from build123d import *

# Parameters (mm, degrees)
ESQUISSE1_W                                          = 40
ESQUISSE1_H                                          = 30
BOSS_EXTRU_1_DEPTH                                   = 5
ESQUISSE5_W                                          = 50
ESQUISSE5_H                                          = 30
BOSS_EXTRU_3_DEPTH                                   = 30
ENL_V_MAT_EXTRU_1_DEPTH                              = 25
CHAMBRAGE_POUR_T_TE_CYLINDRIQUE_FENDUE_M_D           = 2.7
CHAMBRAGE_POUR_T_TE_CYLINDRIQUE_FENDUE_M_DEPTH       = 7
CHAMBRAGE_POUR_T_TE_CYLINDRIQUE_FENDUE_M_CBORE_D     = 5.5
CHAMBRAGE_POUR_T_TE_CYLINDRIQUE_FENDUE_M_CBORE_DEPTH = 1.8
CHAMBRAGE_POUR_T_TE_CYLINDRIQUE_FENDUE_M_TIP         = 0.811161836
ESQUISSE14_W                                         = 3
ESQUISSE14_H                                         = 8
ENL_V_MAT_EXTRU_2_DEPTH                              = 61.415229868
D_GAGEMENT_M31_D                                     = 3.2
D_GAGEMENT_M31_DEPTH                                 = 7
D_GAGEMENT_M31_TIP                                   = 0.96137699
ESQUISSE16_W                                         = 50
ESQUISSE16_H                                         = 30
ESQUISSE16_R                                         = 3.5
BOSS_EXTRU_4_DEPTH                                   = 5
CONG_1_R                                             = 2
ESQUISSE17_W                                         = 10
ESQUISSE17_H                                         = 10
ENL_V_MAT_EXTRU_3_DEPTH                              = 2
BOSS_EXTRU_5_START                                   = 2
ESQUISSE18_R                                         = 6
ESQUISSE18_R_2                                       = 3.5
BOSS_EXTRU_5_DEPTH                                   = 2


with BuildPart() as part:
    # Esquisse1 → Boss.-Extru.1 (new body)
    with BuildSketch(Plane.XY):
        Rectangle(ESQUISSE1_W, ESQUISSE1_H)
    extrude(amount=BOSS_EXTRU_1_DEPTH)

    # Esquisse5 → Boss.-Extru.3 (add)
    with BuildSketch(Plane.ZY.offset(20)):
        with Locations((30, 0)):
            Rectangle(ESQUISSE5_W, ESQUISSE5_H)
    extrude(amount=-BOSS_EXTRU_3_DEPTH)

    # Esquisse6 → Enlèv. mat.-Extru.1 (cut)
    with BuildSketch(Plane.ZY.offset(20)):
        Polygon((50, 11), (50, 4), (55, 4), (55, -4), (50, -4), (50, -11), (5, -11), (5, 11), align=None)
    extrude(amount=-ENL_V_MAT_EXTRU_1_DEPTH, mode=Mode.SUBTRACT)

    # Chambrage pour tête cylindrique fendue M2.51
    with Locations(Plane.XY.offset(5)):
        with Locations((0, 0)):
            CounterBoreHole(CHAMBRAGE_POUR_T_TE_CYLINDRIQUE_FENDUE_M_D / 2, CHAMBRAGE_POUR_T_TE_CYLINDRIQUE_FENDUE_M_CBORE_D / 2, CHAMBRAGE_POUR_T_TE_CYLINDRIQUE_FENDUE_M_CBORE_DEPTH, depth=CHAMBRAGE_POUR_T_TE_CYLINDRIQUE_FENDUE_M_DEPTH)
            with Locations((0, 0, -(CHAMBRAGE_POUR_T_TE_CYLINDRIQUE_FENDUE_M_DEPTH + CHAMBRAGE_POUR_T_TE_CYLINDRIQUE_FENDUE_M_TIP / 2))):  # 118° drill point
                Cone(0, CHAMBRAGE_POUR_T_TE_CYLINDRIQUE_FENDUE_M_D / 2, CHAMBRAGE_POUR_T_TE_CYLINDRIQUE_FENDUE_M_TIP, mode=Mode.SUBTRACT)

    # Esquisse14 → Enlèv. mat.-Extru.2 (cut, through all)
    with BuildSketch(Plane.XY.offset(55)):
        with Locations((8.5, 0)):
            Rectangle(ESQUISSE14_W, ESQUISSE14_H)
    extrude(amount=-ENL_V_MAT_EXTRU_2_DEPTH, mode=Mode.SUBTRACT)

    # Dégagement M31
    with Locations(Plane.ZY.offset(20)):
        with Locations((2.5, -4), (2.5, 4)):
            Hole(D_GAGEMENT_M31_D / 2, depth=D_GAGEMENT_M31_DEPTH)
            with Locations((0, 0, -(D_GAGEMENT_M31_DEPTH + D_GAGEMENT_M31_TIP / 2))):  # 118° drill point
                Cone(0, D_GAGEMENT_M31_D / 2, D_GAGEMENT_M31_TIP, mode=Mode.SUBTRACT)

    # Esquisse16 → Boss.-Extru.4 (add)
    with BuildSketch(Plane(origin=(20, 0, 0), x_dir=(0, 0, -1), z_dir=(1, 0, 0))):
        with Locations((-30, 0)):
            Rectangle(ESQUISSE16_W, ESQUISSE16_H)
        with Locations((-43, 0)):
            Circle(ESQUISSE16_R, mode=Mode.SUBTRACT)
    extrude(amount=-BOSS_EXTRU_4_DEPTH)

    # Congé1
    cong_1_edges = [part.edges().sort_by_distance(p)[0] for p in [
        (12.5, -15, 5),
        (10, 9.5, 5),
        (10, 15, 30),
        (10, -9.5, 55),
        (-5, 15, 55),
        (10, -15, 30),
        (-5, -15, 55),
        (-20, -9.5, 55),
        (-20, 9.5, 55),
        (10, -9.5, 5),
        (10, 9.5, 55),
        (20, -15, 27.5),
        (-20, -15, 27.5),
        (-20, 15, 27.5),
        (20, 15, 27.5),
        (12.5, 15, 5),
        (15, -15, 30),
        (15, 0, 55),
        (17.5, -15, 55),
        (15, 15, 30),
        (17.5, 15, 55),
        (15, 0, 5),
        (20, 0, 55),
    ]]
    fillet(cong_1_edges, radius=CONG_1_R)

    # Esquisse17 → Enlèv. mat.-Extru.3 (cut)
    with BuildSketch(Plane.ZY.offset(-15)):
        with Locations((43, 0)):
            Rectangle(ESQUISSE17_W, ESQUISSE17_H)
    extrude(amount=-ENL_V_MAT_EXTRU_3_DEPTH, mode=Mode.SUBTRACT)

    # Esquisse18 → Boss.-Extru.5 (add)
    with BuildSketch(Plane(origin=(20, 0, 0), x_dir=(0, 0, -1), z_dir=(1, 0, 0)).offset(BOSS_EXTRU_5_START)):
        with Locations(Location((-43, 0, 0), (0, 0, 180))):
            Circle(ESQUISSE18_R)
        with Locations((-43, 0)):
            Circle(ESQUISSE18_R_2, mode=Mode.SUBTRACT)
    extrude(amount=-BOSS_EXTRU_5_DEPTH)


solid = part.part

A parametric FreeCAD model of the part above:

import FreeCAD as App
import Part
import Sketcher
from FreeCAD import Vector


def edges_at(feature, points):
    """Names of the edges that pass closest to the given points."""
    edges = feature.Shape.Edges
    near = lambda p: min(range(len(edges)), key=lambda i: edges[i].distToShape(Part.Vertex(*p))[0])
    return sorted({f"Edge{near(p) + 1}" for p in points})


def add_polygon(sketch, points):
    """Adds a closed chain of lines whose ends are joined by coincident constraints."""
    first, n = sketch.GeometryCount, len(points)
    for a, b in zip(points, points[1:] + points[:1]):
        sketch.addGeometry(Part.LineSegment(App.Vector(*a, 0), App.Vector(*b, 0)), False)
    for i in range(n):
        sketch.addConstraint(Sketcher.Constraint("Coincident", first + i, 2, first + (i + 1) % n, 1))

doc = App.newDocument("Part")
body = doc.addObject("PartDesign::Body", "Body")

sketch1 = body.newObject("Sketcher::SketchObject", "Sketch")
sketch1.AttachmentSupport = (doc.getObject("XY_Plane"), [""])
sketch1.MapMode = "FlatFace"
add_polygon(sketch1, [(-20, 15), (-20, -15), (20, -15), (20, 15)])
sketch1.addConstraint([
    Sketcher.Constraint("Vertical", 0),
    Sketcher.Constraint("Horizontal", 1),
    Sketcher.Constraint("Vertical", 2),
    Sketcher.Constraint("Horizontal", 3),
    Sketcher.Constraint("Symmetric", 0, 2, 2, 2, -1, 1),
    Sketcher.Constraint("DistanceX", 1, 1, 1, 2, 40.0),
    Sketcher.Constraint("DistanceY", 0, 2, 0, 1, 30.0),
])
pad1 = body.newObject("PartDesign::Pad", "Pad")
pad1.Profile = sketch1
pad1.Length = 5

sketch2 = body.newObject("Sketcher::SketchObject", "Sketch001")
sketch2.AttachmentSupport = (doc.getObject("YZ_Plane"), [""])
sketch2.MapMode = "FlatFace"
sketch2.AttachmentOffset = App.Placement(Vector(0, 0, -20), App.Rotation())
add_polygon(sketch2, [(15, 5), (-15, 5), (-15, 55), (15, 55)])
sketch2.addConstraint([
    Sketcher.Constraint("Horizontal", 0),
    Sketcher.Constraint("Vertical", 1),
    Sketcher.Constraint("Horizontal", 2),
    Sketcher.Constraint("Vertical", 3),
    Sketcher.Constraint("DistanceX", 0, 2, 0, 1, 30.0),
    Sketcher.Constraint("DistanceY", 1, 1, 1, 2, 50.0),
    Sketcher.Constraint("DistanceX", 0, 2, -1, 1, 15.0),
    Sketcher.Constraint("DistanceY", -1, 1, 0, 2, 5.0),
])
pad2 = body.newObject("PartDesign::Pad", "Pad001")
pad2.Profile = sketch2
pad2.Length = 30

sketch3 = body.newObject("Sketcher::SketchObject", "Sketch002")
sketch3.AttachmentSupport = (doc.getObject("YZ_Plane"), [""])
sketch3.MapMode = "FlatFace"
sketch3.AttachmentOffset = App.Placement(Vector(0, 0, -20), App.Rotation())
add_polygon(sketch3, [(4, 50), (11, 50), (11, 5), (-11, 5), (-11, 50), (-4, 50), (-4, 55), (4, 55)])
sketch3.addConstraint([
    Sketcher.Constraint("Horizontal", 0),
    Sketcher.Constraint("Vertical", 1),
    Sketcher.Constraint("Horizontal", 2),
    Sketcher.Constraint("Vertical", 3),
    Sketcher.Constraint("Horizontal", 4),
    Sketcher.Constraint("Vertical", 5),
    Sketcher.Constraint("Horizontal", 6),
    Sketcher.Constraint("Vertical", 7),
    Sketcher.Constraint("Symmetric", 0, 2, 3, 2, -2),
    Sketcher.Constraint("Equal", 0, 4),
    Sketcher.Constraint("DistanceX", 0, 1, 0, 2, 7.0),
    Sketcher.Constraint("DistanceX", 2, 2, 2, 1, 22.0),
    Sketcher.Constraint("DistanceY", 1, 2, 1, 1, 45.0),
    Sketcher.Constraint("DistanceY", 5, 1, 5, 2, 5.0),
    Sketcher.Constraint("DistanceY", -1, 1, 0, 2, 50.0),
])
pocket1 = body.newObject("PartDesign::Pocket", "Pocket")
pocket1.Profile = sketch3
pocket1.Length = 25
pocket1.Reversed = True

sketch4 = body.newObject("Sketcher::SketchObject", "Sketch003")
sketch4.AttachmentSupport = (doc.getObject("XY_Plane"), [""])
sketch4.MapMode = "FlatFace"
sketch4.AttachmentOffset = App.Placement(Vector(0, 0, 5), App.Rotation())
sketch4.addGeometry(Part.Circle(Vector(0, 0, 0), Vector(0, 0, 1), 1.4), False)
sketch4.addConstraint([
    Sketcher.Constraint("Coincident", 0, 3, -1, 1),
    Sketcher.Constraint("Diameter", 0, 2.7),
])
doc.recompute()
hole = body.newObject("PartDesign::Hole", "Hole")
hole.Profile = sketch4
hole.ThreadType = "None"
hole.Diameter = 2.7
hole.DepthType = "Dimension"
hole.Depth = 7
hole.DrillPoint = "Angled"
hole.DrillPointAngle = 118
hole.HoleCutType = "Counterbore"
hole.HoleCutDiameter = 5.5
hole.HoleCutDepth = 1.8

sketch5 = body.newObject("Sketcher::SketchObject", "Sketch004")
sketch5.AttachmentSupport = (doc.getObject("XY_Plane"), [""])
sketch5.MapMode = "FlatFace"
sketch5.AttachmentOffset = App.Placement(Vector(0, 0, 55), App.Rotation())
add_polygon(sketch5, [(7, 4), (7, -4), (10, -4), (10, 4)])
sketch5.addConstraint([
    Sketcher.Constraint("Vertical", 0),
    Sketcher.Constraint("Horizontal", 1),
    Sketcher.Constraint("Vertical", 2),
    Sketcher.Constraint("Horizontal", 3),
    Sketcher.Constraint("DistanceX", 1, 1, 1, 2, 3.0),
    Sketcher.Constraint("DistanceY", 0, 2, 0, 1, 8.0),
    Sketcher.Constraint("DistanceX", -1, 1, 0, 2, 7.0),
    Sketcher.Constraint("DistanceY", 0, 2, -1, 1, 4.0),
])
pocket2 = body.newObject("PartDesign::Pocket", "Pocket001")
pocket2.Profile = sketch5
pocket2.Type = "ThroughAll"

sketch6 = body.newObject("Sketcher::SketchObject", "Sketch005")
sketch6.AttachmentSupport = (doc.getObject("YZ_Plane"), [""])
sketch6.MapMode = "FlatFace"
sketch6.AttachmentOffset = App.Placement(Vector(0, 0, -20), App.Rotation())
sketch6.addGeometry([
    Part.Circle(Vector(-4, 2.5, 0), Vector(0, 0, 1), 1.6),
    Part.Circle(Vector(4, 2.5, 0), Vector(0, 0, 1), 1.6),
], False)
sketch6.addConstraint([
    Sketcher.Constraint("Equal", 0, 1),
    Sketcher.Constraint("Symmetric", 0, 3, 1, 3, -2),
    Sketcher.Constraint("Diameter", 0, 3.2),
    Sketcher.Constraint("DistanceX", 0, 3, -1, 1, 4.0),
    Sketcher.Constraint("DistanceY", -1, 1, 0, 3, 2.5),
])
doc.recompute()
hole2 = body.newObject("PartDesign::Hole", "Hole001")
hole2.Profile = sketch6
hole2.ThreadType = "None"
hole2.Diameter = 3.2
hole2.DepthType = "Dimension"
hole2.Depth = 7
hole2.DrillPoint = "Angled"
hole2.DrillPointAngle = 118
hole2.Reversed = True

sketch7 = body.newObject("Sketcher::SketchObject", "Sketch006")
sketch7.AttachmentSupport = (doc.getObject("YZ_Plane"), [""])
sketch7.MapMode = "FlatFace"
sketch7.AttachmentOffset = App.Placement(Vector(0, 0, 20), App.Rotation())
add_polygon(sketch7, [(15, 55), (-15, 55), (-15, 5), (15, 5)])
sketch7.addGeometry(Part.Circle(Vector(0, 43, 0), Vector(0, 0, 1), 3.5), False)
sketch7.addConstraint([
    Sketcher.Constraint("Horizontal", 0),
    Sketcher.Constraint("Vertical", 1),
    Sketcher.Constraint("Horizontal", 2),
    Sketcher.Constraint("Vertical", 3),
    Sketcher.Constraint("PointOnObject", 4, 3, -2),
    Sketcher.Constraint("Diameter", 4, 7.0),
    Sketcher.Constraint("DistanceX", 0, 2, 0, 1, 30.0),
    Sketcher.Constraint("DistanceY", 1, 2, 1, 1, 50.0),
    Sketcher.Constraint("DistanceY", -1, 1, 4, 3, 43.0),
    Sketcher.Constraint("DistanceX", 0, 2, -1, 1, 15.0),
    Sketcher.Constraint("DistanceY", -1, 1, 0, 2, 55.0),
])
pad3 = body.newObject("PartDesign::Pad", "Pad002")
pad3.Profile = sketch7
pad3.Length = 5
pad3.Reversed = True
doc.recompute()

fillet = body.newObject("PartDesign::Fillet", "Fillet")
fillet.Base = (pad3, edges_at(pad3, [
    (12.5, -15, 5),
    (10, 9.5, 5),
    (10, 15, 30),
    (10, -9.5, 55),
    (-5, 15, 55),
    (10, -15, 30),
    (-5, -15, 55),
    (-20, -9.5, 55),
    (-20, 9.5, 55),
    (10, -9.5, 5),
    (10, 9.5, 55),
    (20, -15, 27.5),
    (-20, -15, 27.5),
    (-20, 15, 27.5),
    (20, 15, 27.5),
    (12.5, 15, 5),
    (15, -15, 30),
    (15, 0, 55),
    (17.5, -15, 55),
    (15, 15, 30),
    (17.5, 15, 55),
    (15, 0, 5),
    (20, 0, 55),
]))
fillet.Radius = 2

sketch8 = body.newObject("Sketcher::SketchObject", "Sketch007")
sketch8.AttachmentSupport = (doc.getObject("YZ_Plane"), [""])
sketch8.MapMode = "FlatFace"
sketch8.AttachmentOffset = App.Placement(Vector(0, 0, 15), App.Rotation())
add_polygon(sketch8, [(5, 38), (-5, 38), (-5, 48), (5, 48)])
sketch8.addConstraint([
    Sketcher.Constraint("Horizontal", 0),
    Sketcher.Constraint("Vertical", 1),
    Sketcher.Constraint("Horizontal", 2),
    Sketcher.Constraint("Vertical", 3),
    Sketcher.Constraint("Equal", 2, 1),
    Sketcher.Constraint("DistanceX", 0, 2, 0, 1, 10.0),
    Sketcher.Constraint("DistanceX", 0, 2, -1, 1, 5.0),
    Sketcher.Constraint("DistanceY", -1, 1, 0, 2, 38.0),
])
pocket3 = body.newObject("PartDesign::Pocket", "Pocket002")
pocket3.Profile = sketch8
pocket3.Length = 2
pocket3.Reversed = True

sketch9 = body.newObject("Sketcher::SketchObject", "Sketch008")
sketch9.AttachmentSupport = (doc.getObject("YZ_Plane"), [""])
sketch9.MapMode = "FlatFace"
sketch9.AttachmentOffset = App.Placement(Vector(0, 0, 22), App.Rotation())
sketch9.addGeometry([
    Part.Circle(Vector(0, 43, 0), Vector(0, 0, 1), 6),
    Part.Circle(Vector(0, 43, 0), Vector(0, 0, 1), 3.5),
], False)
sketch9.addConstraint([
    Sketcher.Constraint("Coincident", 1, 3, 0, 3),
    Sketcher.Constraint("PointOnObject", 0, 3, -2),
    Sketcher.Constraint("Diameter", 0, 12.0),
    Sketcher.Constraint("Diameter", 1, 7.0),
    Sketcher.Constraint("DistanceY", -1, 1, 0, 3, 43.0),
])
pad4 = body.newObject("PartDesign::Pad", "Pad003")
pad4.Profile = sketch9
pad4.Length = 2
pad4.Reversed = True

doc.recompute()
